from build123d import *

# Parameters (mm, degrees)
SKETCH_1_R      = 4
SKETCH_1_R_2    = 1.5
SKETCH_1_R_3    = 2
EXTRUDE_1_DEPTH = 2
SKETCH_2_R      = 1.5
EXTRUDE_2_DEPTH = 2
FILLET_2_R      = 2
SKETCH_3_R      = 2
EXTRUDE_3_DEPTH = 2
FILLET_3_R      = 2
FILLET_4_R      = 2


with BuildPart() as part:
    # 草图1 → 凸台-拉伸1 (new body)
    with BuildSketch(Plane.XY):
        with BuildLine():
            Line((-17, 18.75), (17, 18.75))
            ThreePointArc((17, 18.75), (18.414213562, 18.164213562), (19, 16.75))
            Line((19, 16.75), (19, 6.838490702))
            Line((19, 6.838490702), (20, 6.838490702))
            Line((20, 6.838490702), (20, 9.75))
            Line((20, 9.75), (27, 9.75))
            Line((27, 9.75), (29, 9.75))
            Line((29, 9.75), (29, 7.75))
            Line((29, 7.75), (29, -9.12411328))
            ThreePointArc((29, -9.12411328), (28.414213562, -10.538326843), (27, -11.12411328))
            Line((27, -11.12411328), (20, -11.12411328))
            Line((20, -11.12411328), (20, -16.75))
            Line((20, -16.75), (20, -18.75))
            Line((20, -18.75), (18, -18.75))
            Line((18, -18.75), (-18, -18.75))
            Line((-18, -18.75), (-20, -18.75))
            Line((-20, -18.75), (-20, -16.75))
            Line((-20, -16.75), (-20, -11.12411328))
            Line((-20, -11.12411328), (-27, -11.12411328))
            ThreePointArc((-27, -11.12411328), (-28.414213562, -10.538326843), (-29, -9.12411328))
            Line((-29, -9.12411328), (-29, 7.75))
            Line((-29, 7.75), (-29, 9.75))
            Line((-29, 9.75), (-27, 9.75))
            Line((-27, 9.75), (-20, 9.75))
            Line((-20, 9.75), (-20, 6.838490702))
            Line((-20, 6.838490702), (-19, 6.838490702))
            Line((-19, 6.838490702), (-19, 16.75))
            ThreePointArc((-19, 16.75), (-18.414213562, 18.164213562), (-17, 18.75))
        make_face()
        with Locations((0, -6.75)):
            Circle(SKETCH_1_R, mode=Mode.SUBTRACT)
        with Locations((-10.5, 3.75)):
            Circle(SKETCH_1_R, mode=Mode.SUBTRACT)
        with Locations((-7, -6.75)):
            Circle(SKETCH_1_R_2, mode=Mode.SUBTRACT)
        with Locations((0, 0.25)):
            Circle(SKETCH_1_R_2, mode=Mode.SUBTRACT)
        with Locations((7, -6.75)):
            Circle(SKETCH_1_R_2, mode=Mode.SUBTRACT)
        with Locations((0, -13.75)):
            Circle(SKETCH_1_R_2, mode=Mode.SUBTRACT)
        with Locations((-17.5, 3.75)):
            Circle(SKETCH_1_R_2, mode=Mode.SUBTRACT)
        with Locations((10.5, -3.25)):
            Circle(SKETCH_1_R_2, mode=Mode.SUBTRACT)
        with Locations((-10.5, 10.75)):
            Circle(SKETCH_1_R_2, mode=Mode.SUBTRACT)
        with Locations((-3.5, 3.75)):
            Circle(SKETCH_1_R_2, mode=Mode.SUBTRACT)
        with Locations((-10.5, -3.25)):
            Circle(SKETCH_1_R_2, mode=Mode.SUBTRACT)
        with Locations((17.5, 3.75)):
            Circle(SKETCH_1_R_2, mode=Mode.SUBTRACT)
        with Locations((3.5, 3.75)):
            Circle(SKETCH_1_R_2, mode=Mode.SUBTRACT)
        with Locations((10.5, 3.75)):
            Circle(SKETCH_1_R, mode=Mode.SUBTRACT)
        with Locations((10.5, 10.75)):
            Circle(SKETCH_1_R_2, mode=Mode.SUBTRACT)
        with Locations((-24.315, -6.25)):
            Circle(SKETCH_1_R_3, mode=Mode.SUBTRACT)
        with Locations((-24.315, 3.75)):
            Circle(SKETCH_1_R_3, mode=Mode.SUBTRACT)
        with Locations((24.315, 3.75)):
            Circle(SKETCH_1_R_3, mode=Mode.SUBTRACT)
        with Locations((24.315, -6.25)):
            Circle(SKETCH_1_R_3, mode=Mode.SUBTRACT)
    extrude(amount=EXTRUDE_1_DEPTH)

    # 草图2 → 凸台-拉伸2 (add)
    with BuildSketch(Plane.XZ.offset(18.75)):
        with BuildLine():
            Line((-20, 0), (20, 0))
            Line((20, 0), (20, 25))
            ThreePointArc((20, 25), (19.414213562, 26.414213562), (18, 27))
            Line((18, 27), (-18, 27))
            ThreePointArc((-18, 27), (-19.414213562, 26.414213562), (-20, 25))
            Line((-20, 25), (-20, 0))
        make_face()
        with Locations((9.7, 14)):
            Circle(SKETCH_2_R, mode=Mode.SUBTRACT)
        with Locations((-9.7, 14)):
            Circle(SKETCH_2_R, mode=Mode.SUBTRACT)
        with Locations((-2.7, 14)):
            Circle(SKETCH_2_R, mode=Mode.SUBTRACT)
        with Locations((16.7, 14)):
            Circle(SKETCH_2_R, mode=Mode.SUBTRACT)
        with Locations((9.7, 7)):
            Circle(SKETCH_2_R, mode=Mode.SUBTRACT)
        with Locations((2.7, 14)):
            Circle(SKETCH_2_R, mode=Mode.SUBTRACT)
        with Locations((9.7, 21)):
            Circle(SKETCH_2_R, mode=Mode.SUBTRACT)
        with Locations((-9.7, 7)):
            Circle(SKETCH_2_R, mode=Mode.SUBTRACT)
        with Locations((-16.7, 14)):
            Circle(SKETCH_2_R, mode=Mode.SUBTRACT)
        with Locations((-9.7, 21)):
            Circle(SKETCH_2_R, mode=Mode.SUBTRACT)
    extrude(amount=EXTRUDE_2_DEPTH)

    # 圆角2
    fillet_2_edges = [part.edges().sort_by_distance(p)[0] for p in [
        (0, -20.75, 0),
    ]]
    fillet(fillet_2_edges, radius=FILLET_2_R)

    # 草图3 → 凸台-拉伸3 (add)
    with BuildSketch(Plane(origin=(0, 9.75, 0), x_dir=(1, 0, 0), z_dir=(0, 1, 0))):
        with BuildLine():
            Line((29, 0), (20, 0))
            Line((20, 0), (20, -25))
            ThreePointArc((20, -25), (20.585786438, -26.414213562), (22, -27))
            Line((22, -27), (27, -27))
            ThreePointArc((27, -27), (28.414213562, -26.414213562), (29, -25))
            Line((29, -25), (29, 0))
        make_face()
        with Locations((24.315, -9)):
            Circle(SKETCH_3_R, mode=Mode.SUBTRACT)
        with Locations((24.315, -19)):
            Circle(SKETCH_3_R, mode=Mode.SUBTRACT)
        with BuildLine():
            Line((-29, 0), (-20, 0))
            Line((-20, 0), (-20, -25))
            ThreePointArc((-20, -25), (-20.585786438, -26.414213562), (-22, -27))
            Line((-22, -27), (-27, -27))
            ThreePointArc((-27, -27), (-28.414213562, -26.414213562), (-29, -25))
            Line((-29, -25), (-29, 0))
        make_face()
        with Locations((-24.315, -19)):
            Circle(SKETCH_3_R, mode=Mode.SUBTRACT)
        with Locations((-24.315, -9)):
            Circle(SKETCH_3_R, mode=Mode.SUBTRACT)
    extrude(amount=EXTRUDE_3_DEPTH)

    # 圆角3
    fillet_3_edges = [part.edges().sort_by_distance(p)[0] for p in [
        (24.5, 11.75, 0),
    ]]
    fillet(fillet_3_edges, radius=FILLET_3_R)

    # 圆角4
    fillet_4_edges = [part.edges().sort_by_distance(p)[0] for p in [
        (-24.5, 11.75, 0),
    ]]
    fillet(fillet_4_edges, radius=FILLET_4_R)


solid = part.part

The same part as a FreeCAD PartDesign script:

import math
import FreeCAD as App
import Part
import Sketcher
Q = App.Units.Quantity


def edges_at(feature, points):
    """Names of the edges that pass closest to the given points."""
    edges = feature.Shape.Edges
    near = lambda p: min(range(len(edges)), key=lambda i: edges[i].distToShape(Part.Vertex(*p))[0])
    return sorted({f"Edge{near(p) + 1}" for p in points})

doc = App.newDocument("Part")
body = doc.addObject("PartDesign::Body", "Body")

# Sketch on XY plane
sketch1 = doc.addObject("Sketcher::SketchObject", "Sketch")
body.addObject(sketch1)
sketch1.AttachmentSupport = (doc.XY_Plane, [""])
sketch1.MapMode = "FlatFace"
sketch1.addGeometry([
    Part.LineSegment(App.Vector(17, 18.8, 0), App.Vector(-17, 18.8, 0)),  # 0
    Part.ArcOfCircle(Part.Circle(App.Vector(-17, 16.7, 0), App.Vector(0, 0, 1), 2), math.radians(90), math.radians(180)),  # 1
    Part.LineSegment(App.Vector(-19, 16.8, 0), App.Vector(-19, 6.8, 0)),  # 2
    Part.LineSegment(App.Vector(-19, 6.8, 0), App.Vector(-20, 6.8, 0)),  # 3
    Part.LineSegment(App.Vector(-20, 6.8, 0), App.Vector(-20, 9.8, 0)),  # 4
    Part.LineSegment(App.Vector(-20, 9.8, 0), App.Vector(-29, 9.8, 0)),  # 5
    Part.LineSegment(App.Vector(-29, 9.8, 0), App.Vector(-29, -9.1, 0)),  # 6
    Part.ArcOfCircle(Part.Circle(App.Vector(-27, -9.1, 0), App.Vector(0, 0, 1), 2), math.radians(180), math.radians(270)),  # 7
    Part.LineSegment(App.Vector(-27, -11.1, 0), App.Vector(-20, -11.1, 0)),  # 8
    Part.LineSegment(App.Vector(-20, -11.1, 0), App.Vector(-20, -18.8, 0)),  # 9
    Part.LineSegment(App.Vector(-20, -18.8, 0), App.Vector(20, -18.8, 0)),  # 10
    Part.LineSegment(App.Vector(20, -18.8, 0), App.Vector(20, -11.1, 0)),  # 11
    Part.LineSegment(App.Vector(20, -11.1, 0), App.Vector(27, -11.1, 0)),  # 12
    Part.ArcOfCircle(Part.Circle(App.Vector(27, -9.1, 0), App.Vector(0, 0, 1), 2), math.radians(-90), math.radians(0)),  # 13
    Part.LineSegment(App.Vector(29, -9.1, 0), App.Vector(29, 9.8, 0)),  # 14
    Part.LineSegment(App.Vector(29, 9.8, 0), App.Vector(20, 9.8, 0)),  # 15
    Part.LineSegment(App.Vector(20, 9.8, 0), App.Vector(20, 6.8, 0)),  # 16
    Part.LineSegment(App.Vector(20, 6.8, 0), App.Vector(19, 6.8, 0)),  # 17
    Part.LineSegment(App.Vector(19, 6.8, 0), App.Vector(19, 16.8, 0)),  # 18
    Part.ArcOfCircle(Part.Circle(App.Vector(17, 16.7, 0), App.Vector(0, 0, 1), 2), math.radians(0), math.radians(90)),  # 19
    Part.Circle(App.Vector(24.3, -6.2, 0), App.Vector(0, 0, 1), 2),  # 20
    Part.Circle(App.Vector(7, -6.8, 0), App.Vector(0, 0, 1), 1.5),  # 21
    Part.Circle(App.Vector(10.5, -3.2, 0), App.Vector(0, 0, 1), 1.5),  # 22
    Part.Circle(App.Vector(0, -13.8, 0), App.Vector(0, 0, 1), 1.5),  # 23
    Part.Circle(App.Vector(0, -6.8, 0), App.Vector(0, 0, 1), 4),  # 24
    Part.Circle(App.Vector(-7, -6.8, 0), App.Vector(0, 0, 1), 1.5),  # 25
    Part.Circle(App.Vector(-10.5, -3.2, 0), App.Vector(0, 0, 1), 1.5),  # 26
    Part.Circle(App.Vector(-24.3, -6.2, 0), App.Vector(0, 0, 1), 2),  # 27
    Part.Circle(App.Vector(24.3, 3.8, 0), App.Vector(0, 0, 1), 2),  # 28
    Part.Circle(App.Vector(17.5, 3.8, 0), App.Vector(0, 0, 1), 1.5),  # 29
    Part.Circle(App.Vector(10.5, 3.8, 0), App.Vector(0, 0, 1), 4),  # 30
    Part.Circle(App.Vector(3.5, 3.8, 0), App.Vector(0, 0, 1), 1.5),  # 31
    Part.Circle(App.Vector(10.5, 10.8, 0), App.Vector(0, 0, 1), 1.5),  # 32
    Part.Circle(App.Vector(0, 0.2, 0), App.Vector(0, 0, 1), 1.5),  # 33
    Part.Circle(App.Vector(-3.5, 3.8, 0), App.Vector(0, 0, 1), 1.5),  # 34
    Part.Circle(App.Vector(-10.5, 3.8, 0), App.Vector(0, 0, 1), 4),  # 35
    Part.Circle(App.Vector(-17.5, 3.8, 0), App.Vector(0, 0, 1), 1.5),  # 36
    Part.Circle(App.Vector(-24.3, 3.8, 0), App.Vector(0, 0, 1), 2),  # 37
    Part.Circle(App.Vector(-10.5, 10.8, 0), App.Vector(0, 0, 1), 1.5),  # 38
], False)
sketch1.addConstraint([
    Sketcher.Constraint("Tangent", 0, 2, 1, 1),
    Sketcher.Constraint("Tangent", 1, 2, 2, 1),
    Sketcher.Constraint("Coincident", 2, 2, 3, 1),
    Sketcher.Constraint("Coincident", 3, 2, 4, 1),
    Sketcher.Constraint("Coincident", 4, 2, 5, 1),
    Sketcher.Constraint("Coincident", 5, 2, 6, 1),
    Sketcher.Constraint("Tangent", 6, 2, 7, 1),
    Sketcher.Constraint("Tangent", 7, 2, 8, 1),
    Sketcher.Constraint("Coincident", 8, 2, 9, 1),
    Sketcher.Constraint("Coincident", 9, 2, 10, 1),
    Sketcher.Constraint("Coincident", 10, 2, 11, 1),
    Sketcher.Constraint("Coincident", 11, 2, 12, 1),
    Sketcher.Constraint("Tangent", 12, 2, 13, 1),
    Sketcher.Constraint("Tangent", 13, 2, 14, 1),
    Sketcher.Constraint("Coincident", 14, 2, 15, 1),
    Sketcher.Constraint("Coincident", 15, 2, 16, 1),
    Sketcher.Constraint("Coincident", 16, 2, 17, 1),
    Sketcher.Constraint("Coincident", 17, 2, 18, 1),
    Sketcher.Constraint("Tangent", 18, 2, 19, 1),
    Sketcher.Constraint("Tangent", 19, 2, 0, 1),
    Sketcher.Constraint("Horizontal", 0),
    Sketcher.Constraint("Vertical", 2),
    Sketcher.Constraint("Horizontal", 3),
    Sketcher.Constraint("Vertical", 4),
    Sketcher.Constraint("Horizontal", 5),
    Sketcher.Constraint("Vertical", 6),
    Sketcher.Constraint("Horizontal", 8),
    Sketcher.Constraint("Vertical", 9),
    Sketcher.Constraint("Horizontal", 10),
    Sketcher.Constraint("Vertical", 11),
    Sketcher.Constraint("Horizontal", 12),
    Sketcher.Constraint("Vertical", 14),
    Sketcher.Constraint("Horizontal", 15),
    Sketcher.Constraint("Vertical", 16),
    Sketcher.Constraint("Horizontal", 17),
    Sketcher.Constraint("Vertical", 18),
    Sketcher.Constraint("Equal", 1, 7),
    Sketcher.Constraint("Equal", 7, 13),
    Sketcher.Constraint("Equal", 13, 19),
    Sketcher.Constraint("Equal", 19, 20),
    Sketcher.Constraint("Equal", 21, 22),
    Sketcher.Constraint("Equal", 22, 23),
    Sketcher.Constraint("Equal", 23, 25),
    Sketcher.Constraint("Equal", 25, 26),
    Sketcher.Constraint("Equal", 20, 27),
    Sketcher.Constraint("Equal", 27, 28),
    Sketcher.Constraint("Equal", 26, 29),
    Sketcher.Constraint("Equal", 24, 30),
    Sketcher.Constraint("Equal", 29, 31),
    Sketcher.Constraint("Equal", 31, 32),
    Sketcher.Constraint("Equal", 32, 33),
    Sketcher.Constraint("Equal", 33, 34),
    Sketcher.Constraint("Equal", 30, 35),
    Sketcher.Constraint("Equal", 34, 36),
    Sketcher.Constraint("Equal", 28, 37),
    Sketcher.Constraint("Equal", 36, 38),
    Sketcher.Constraint("Symmetric", 7, 3, 13, 3, -2),
    Sketcher.Constraint("Symmetric", 21, 3, 25, 3, -2),
    Sketcher.Constraint("Symmetric", 22, 3, 26, 3, -2),
    Sketcher.Constraint("Symmetric", 20, 3, 27, 3, -2),
    Sketcher.Constraint("Symmetric", 31, 3, 34, 3, -2),
    Sketcher.Constraint("Symmetric", 30, 3, 35, 3, -2),
    Sketcher.Constraint("Symmetric", 29, 3, 36, 3, -2),
    Sketcher.Constraint("Symmetric", 28, 3, 37, 3, -2),
    Sketcher.Constraint("Symmetric", 32, 3, 38, 3, -2),
    Sketcher.Constraint("Symmetric", 4, 2, 15, 2, -2),
    Sketcher.Constraint("Symmetric", 2, 2, 17, 2, -2),
    Sketcher.Constraint("PointOnObject", 23, 3, -2),
    Sketcher.Constraint("PointOnObject", 24, 3, -2),
    Sketcher.Constraint("PointOnObject", 33, 3, -2),
    Sketcher.Constraint("Horizontal", 21, 3, 24, 3),
    Sketcher.Constraint("Horizontal", 28, 3, 29, 3),
    Sketcher.Constraint("Horizontal", 29, 3, 30, 3),
    Sketcher.Constraint("Horizontal", 30, 3, 31, 3),
    Sketcher.Constraint("Vertical", 20, 3, 28, 3),
    Sketcher.Constraint("Vertical", 22, 3, 30, 3),
    Sketcher.Constraint("Vertical", 30, 3, 32, 3),
    Sketcher.Constraint("Vertical", 4, 2, 8, 2),
    Sketcher.Constraint("Vertical", 11, 2, 15, 2),
    Sketcher.Constraint("Diameter", 20, Q("4 mm")),
    Sketcher.Constraint("Diameter", 21, Q("3 mm")),
    Sketcher.Constraint("Diameter", 24, Q("8 mm")),
    Sketcher.Constraint("DistanceX", 0, 2, 0, 1, Q("34 mm")),
    Sketcher.Constraint("DistanceX", 3, 2, 3, 1, Q("1 mm")),
    Sketcher.Constraint("DistanceX", 5, 2, 5, 1, Q("9 mm")),
    Sketcher.Constraint("DistanceX", -1, 1, 21, 3, Q("7 mm")),
    Sketcher.Constraint("DistanceY", 20, 3, 19, 3, Q("23 mm")),
    Sketcher.Constraint("DistanceY", 20, 3, 22, 3, Q("3 mm")),
    Sketcher.Constraint("DistanceY", 23, 3, 21, 3, Q("7 mm")),
    Sketcher.Constraint("DistanceY", 20, 3, 28, 3, Q("10 mm")),
    Sketcher.Constraint("DistanceX", 22, 3, 29, 3, Q("7 mm")),
    Sketcher.Constraint("DistanceX", 31, 3, 30, 3, Q("7 mm")),
    Sketcher.Constraint("DistanceY", 30, 3, 32, 3, Q("7 mm")),
    Sketcher.Constraint("DistanceY", 24, 3, 33, 3, Q("7 mm")),
    Sketcher.Constraint("DistanceX", 34, 3, 31, 3, Q("7 mm")),
    Sketcher.Constraint("DistanceY", 36, 3, 4, 2, Q("6 mm")),
    Sketcher.Constraint("DistanceY", 10, 2, 21, 3, Q("12 mm")),
    Sketcher.Constraint("DistanceY", 21, 3, 20, 3, Q("0.5 mm")),
    Sketcher.Constraint("DistanceY", -1, 1, 1, 3, Q("16.75 mm")),
    Sketcher.Constraint("DistanceX", -1, 1, 20, 3, Q("24.315 mm")),
    Sketcher.Constraint("DistanceY", 2, 2, 2, 1, Q("9.911509 mm")),
    Sketcher.Constraint("DistanceY", 6, 2, 6, 1, Q("18.874113 mm")),
])
pad1 = doc.addObject("PartDesign::Pad", "Pad")
body.addObject(pad1)
pad1.Profile = sketch1
pad1.Length = 2

# Sketch on XZ plane
sketch2 = doc.addObject("Sketcher::SketchObject", "Sketch001")
body.addObject(sketch2)
sketch2.AttachmentSupport = (doc.XZ_Plane, [""])
sketch2.MapMode = "FlatFace"
sketch2.AttachmentOffset = App.Placement(App.Vector(0, 0, 18.75), App.Rotation())
sketch2.addGeometry([
    Part.LineSegment(App.Vector(-20, 0, 0), App.Vector(20, 0, 0)),  # 0
    Part.LineSegment(App.Vector(20, 0, 0), App.Vector(20, 25, 0)),  # 1
    Part.ArcOfCircle(Part.Circle(App.Vector(18, 25, 0), App.Vector(0, 0, 1), 2), math.radians(0), math.radians(90)),  # 2
    Part.LineSegment(App.Vector(18, 27, 0), App.Vector(-18, 27, 0)),  # 3
    Part.ArcOfCircle(Part.Circle(App.Vector(-18, 25, 0), App.Vector(0, 0, 1), 2), math.radians(90), math.radians(180)),  # 4
    Part.LineSegment(App.Vector(-20, 25, 0), App.Vector(-20, 0, 0)),  # 5
    Part.Circle(App.Vector(-9.7, 7, 0), App.Vector(0, 0, 1), 1.5),  # 6
    Part.Circle(App.Vector(9.7, 7, 0), App.Vector(0, 0, 1), 1.5),  # 7
    Part.Circle(App.Vector(-16.7, 14, 0), App.Vector(0, 0, 1), 1.5),  # 8
    Part.Circle(App.Vector(-9.7, 14, 0), App.Vector(0, 0, 1), 1.5),  # 9
    Part.Circle(App.Vector(-2.7, 14, 0), App.Vector(0, 0, 1), 1.5),  # 10
    Part.Circle(App.Vector(-9.7, 21, 0), App.Vector(0, 0, 1), 1.5),  # 11
    Part.Circle(App.Vector(2.7, 14, 0), App.Vector(0, 0, 1), 1.5),  # 12
    Part.Circle(App.Vector(9.7, 14, 0), App.Vector(0, 0, 1), 1.5),  # 13
    Part.Circle(App.Vector(16.7, 14, 0), App.Vector(0, 0, 1), 1.5),  # 14
    Part.Circle(App.Vector(9.7, 21, 0), App.Vector(0, 0, 1), 1.5),  # 15
], False)
sketch2.addConstraint([
    Sketcher.Constraint("Coincident", 0, 2, 1, 1),
    Sketcher.Constraint("Tangent", 1, 2, 2, 1),
    Sketcher.Constraint("Tangent", 2, 2, 3, 1),
    Sketcher.Constraint("Tangent", 3, 2, 4, 1),
    Sketcher.Constraint("Tangent", 4, 2, 5, 1),
    Sketcher.Constraint("Coincident", 5, 2, 0, 1),
    Sketcher.Constraint("Horizontal", 0),
    Sketcher.Constraint("Vertical", 1),
    Sketcher.Constraint("Horizontal", 3),
    Sketcher.Constraint("Vertical", 5),
    Sketcher.Constraint("Equal", 2, 4),
    Sketcher.Constraint("Equal", 6, 7),
    Sketcher.Constraint("Equal", 7, 8),
    Sketcher.Constraint("Equal", 8, 9),
    Sketcher.Constraint("Equal", 9, 10),
    Sketcher.Constraint("Equal", 10, 11),
    Sketcher.Constraint("Equal", 11, 12),
    Sketcher.Constraint("Equal", 12, 13),
    Sketcher.Constraint("Equal", 13, 14),
    Sketcher.Constraint("Equal", 14, 15),
    Sketcher.Constraint("Symmetric", 0, 2, 5, 2, -1, 1),
    Sketcher.Constraint("Symmetric", 6, 3, 7, 3, -2),
    Sketcher.Constraint("Symmetric", 10, 3, 12, 3, -2),
    Sketcher.Constraint("Symmetric", 9, 3, 13, 3, -2),
    Sketcher.Constraint("Symmetric", 8, 3, 14, 3, -2),
    Sketcher.Constraint("Symmetric", 11, 3, 15, 3, -2),
    Sketcher.Constraint("Horizontal", 8, 3, 9, 3),
    Sketcher.Constraint("Horizontal", 9, 3, 10, 3),
    Sketcher.Constraint("Vertical", 6, 3, 9, 3),
    Sketcher.Constraint("Vertical", 9, 3, 11, 3),
    Sketcher.Constraint("Diameter", 6, Q("3 mm")),
    Sketcher.Constraint("Radius", 2, Q("2 mm")),
    Sketcher.Constraint("DistanceX", 0, 1, 0, 2, Q("40 mm")),
    Sketcher.Constraint("DistanceY", 1, 1, 1, 2, Q("25 mm")),
    Sketcher.Constraint("DistanceY", -1, 1, 6, 3, Q("7 mm")),
    Sketcher.Constraint("DistanceY", -1, 1, 8, 3, Q("14 mm")),
    Sketcher.Constraint("DistanceY", -1, 1, 11, 3, Q("21 mm")),
    Sketcher.Constraint("DistanceX", 8, 3, 6, 3, Q("7 mm")),
    Sketcher.Constraint("DistanceX", 9, 3, 10, 3, Q("7 mm")),
    Sketcher.Constraint("DistanceX", 6, 3, -1, 1, Q("9.7 mm")),
])
pad2 = doc.addObject("PartDesign::Pad", "Pad001")
body.addObject(pad2)
pad2.Profile = sketch2
pad2.Length = 2
doc.recompute()

fillet = doc.addObject("PartDesign::Fillet", "Fillet")
body.addObject(fillet)
fillet.Base = (pad2, edges_at(pad2, [(0, -20.75, 0)]))
fillet.Radius = 2

# Sketch on XZ plane
sketch3 = doc.addObject("Sketcher::SketchObject", "Sketch002")
body.addObject(sketch3)
sketch3.AttachmentSupport = (doc.XZ_Plane, [""])
sketch3.MapMode = "FlatFace"
sketch3.AttachmentOffset = App.Placement(App.Vector(0, 0, -9.75), App.Rotation())
sketch3.addGeometry([
    Part.LineSegment(App.Vector(29, 0, 0), App.Vector(20, 0, 0)),  # 0
    Part.LineSegment(App.Vector(20, 0, 0), App.Vector(20, 25, 0)),  # 1
    Part.ArcOfCircle(Part.Circle(App.Vector(22, 25, 0), App.Vector(0, 0, 1), 2), math.radians(90), math.radians(180)),  # 2
    Part.LineSegment(App.Vector(22, 27, 0), App.Vector(27, 27, 0)),  # 3
    Part.ArcOfCircle(Part.Circle(App.Vector(27, 25, 0), App.Vector(0, 0, 1), 2), math.radians(0), math.radians(90)),  # 4
    Part.LineSegment(App.Vector(29, 25, 0), App.Vector(29, 0, 0)),  # 5
    Part.Circle(App.Vector(24.3, 19, 0), App.Vector(0, 0, 1), 2),  # 6
    Part.Circle(App.Vector(24.3, 9, 0), App.Vector(0, 0, 1), 2),  # 7
    Part.LineSegment(App.Vector(-20, 0, 0), App.Vector(-29, 0, 0)),  # 8
    Part.LineSegment(App.Vector(-29, 0, 0), App.Vector(-29, 25, 0)),  # 9
    Part.ArcOfCircle(Part.Circle(App.Vector(-27, 25, 0), App.Vector(0, 0, 1), 2), math.radians(90), math.radians(180)),  # 10
    Part.LineSegment(App.Vector(-27, 27, 0), App.Vector(-22, 27, 0)),  # 11
    Part.ArcOfCircle(Part.Circle(App.Vector(-22, 25, 0), App.Vector(0, 0, 1), 2), math.radians(0), math.radians(90)),  # 12
    Part.LineSegment(App.Vector(-20, 25, 0), App.Vector(-20, 0, 0)),  # 13
    Part.Circle(App.Vector(-24.3, 19, 0), App.Vector(0, 0, 1), 2),  # 14
    Part.Circle(App.Vector(-24.3, 9, 0), App.Vector(0, 0, 1), 2),  # 15
], False)
sketch3.addConstraint([
    Sketcher.Constraint("Coincident", 0, 2, 1, 1),
    Sketcher.Constraint("Tangent", 1, 2, 2, 2),
    Sketcher.Constraint("Tangent", 2, 1, 3, 1),
    Sketcher.Constraint("Tangent", 3, 2, 4, 2),
    Sketcher.Constraint("Tangent", 4, 1, 5, 1),
    Sketcher.Constraint("Coincident", 5, 2, 0, 1),
    Sketcher.Constraint("Coincident", 8, 2, 9, 1),
    Sketcher.Constraint("Tangent", 9, 2, 10, 2),
    Sketcher.Constraint("Tangent", 10, 1, 11, 1),
    Sketcher.Constraint("Tangent", 11, 2, 12, 2),
    Sketcher.Constraint("Tangent", 12, 1, 13, 1),
    Sketcher.Constraint("Coincident", 13, 2, 8, 1),
    Sketcher.Constraint("Horizontal", 0),
    Sketcher.Constraint("Vertical", 1),
    Sketcher.Constraint("Horizontal", 3),
    Sketcher.Constraint("Vertical", 5),
    Sketcher.Constraint("Horizontal", 8),
    Sketcher.Constraint("Vertical", 9),
    Sketcher.Constraint("Horizontal", 11),
    Sketcher.Constraint("Vertical", 13),
    Sketcher.Constraint("Equal", 2, 4),
    Sketcher.Constraint("Equal", 4, 6),
    Sketcher.Constraint("Equal", 6, 7),
    Sketcher.Constraint("Equal", 7, 10),
    Sketcher.Constraint("Equal", 10, 12),
    Sketcher.Constraint("Equal", 12, 14),
    Sketcher.Constraint("Equal", 14, 15),
    Sketcher.Constraint("Symmetric", 5, 2, 8, 2, -1, 1),
    Sketcher.Constraint("Symmetric", 2, 3, 12, 3, -2),
    Sketcher.Constraint("Symmetric", 6, 3, 14, 3, -2),
    Sketcher.Constraint("Symmetric", 7, 3, 15, 3, -2),
    Sketcher.Constraint("PointOnObject", 0, 2, -1),
    Sketcher.Constraint("Vertical", 6, 3, 7, 3),
    Sketcher.Constraint("Diameter", 6, Q("4 mm")),
    Sketcher.Constraint("DistanceX", 0, 2, 0, 1, Q("9 mm")),
    Sketcher.Constraint("DistanceY", 1, 1, 1, 2, Q("25 mm")),
    Sketcher.Constraint("DistanceX", -1, 1, 2, 3, Q("22 mm")),
    Sketcher.Constraint("DistanceY", -1, 1, 6, 3, Q("19 mm")),
    Sketcher.Constraint("DistanceY", -1, 1, 7, 3, Q("9 mm")),
    Sketcher.Constraint("DistanceX", 14, 3, 6, 3, Q("48.63 mm")),
])
pad3 = doc.addObject("PartDesign::Pad", "Pad002")
body.addObject(pad3)
pad3.Profile = sketch3
pad3.Length = 2
pad3.Reversed = True
doc.recompute()

fillet2 = doc.addObject("PartDesign::Fillet", "Fillet001")
body.addObject(fillet2)
fillet2.Base = (pad3, edges_at(pad3, [(24.5, 11.75, 0)]))
fillet2.Radius = 2
doc.recompute()

fillet3 = doc.addObject("PartDesign::Fillet", "Fillet002")
body.addObject(fillet3)
fillet3.Base = (fillet2, edges_at(fillet2, [(-24.5, 11.75, 0)]))
fillet3.Radius = 2

doc.recompute()
